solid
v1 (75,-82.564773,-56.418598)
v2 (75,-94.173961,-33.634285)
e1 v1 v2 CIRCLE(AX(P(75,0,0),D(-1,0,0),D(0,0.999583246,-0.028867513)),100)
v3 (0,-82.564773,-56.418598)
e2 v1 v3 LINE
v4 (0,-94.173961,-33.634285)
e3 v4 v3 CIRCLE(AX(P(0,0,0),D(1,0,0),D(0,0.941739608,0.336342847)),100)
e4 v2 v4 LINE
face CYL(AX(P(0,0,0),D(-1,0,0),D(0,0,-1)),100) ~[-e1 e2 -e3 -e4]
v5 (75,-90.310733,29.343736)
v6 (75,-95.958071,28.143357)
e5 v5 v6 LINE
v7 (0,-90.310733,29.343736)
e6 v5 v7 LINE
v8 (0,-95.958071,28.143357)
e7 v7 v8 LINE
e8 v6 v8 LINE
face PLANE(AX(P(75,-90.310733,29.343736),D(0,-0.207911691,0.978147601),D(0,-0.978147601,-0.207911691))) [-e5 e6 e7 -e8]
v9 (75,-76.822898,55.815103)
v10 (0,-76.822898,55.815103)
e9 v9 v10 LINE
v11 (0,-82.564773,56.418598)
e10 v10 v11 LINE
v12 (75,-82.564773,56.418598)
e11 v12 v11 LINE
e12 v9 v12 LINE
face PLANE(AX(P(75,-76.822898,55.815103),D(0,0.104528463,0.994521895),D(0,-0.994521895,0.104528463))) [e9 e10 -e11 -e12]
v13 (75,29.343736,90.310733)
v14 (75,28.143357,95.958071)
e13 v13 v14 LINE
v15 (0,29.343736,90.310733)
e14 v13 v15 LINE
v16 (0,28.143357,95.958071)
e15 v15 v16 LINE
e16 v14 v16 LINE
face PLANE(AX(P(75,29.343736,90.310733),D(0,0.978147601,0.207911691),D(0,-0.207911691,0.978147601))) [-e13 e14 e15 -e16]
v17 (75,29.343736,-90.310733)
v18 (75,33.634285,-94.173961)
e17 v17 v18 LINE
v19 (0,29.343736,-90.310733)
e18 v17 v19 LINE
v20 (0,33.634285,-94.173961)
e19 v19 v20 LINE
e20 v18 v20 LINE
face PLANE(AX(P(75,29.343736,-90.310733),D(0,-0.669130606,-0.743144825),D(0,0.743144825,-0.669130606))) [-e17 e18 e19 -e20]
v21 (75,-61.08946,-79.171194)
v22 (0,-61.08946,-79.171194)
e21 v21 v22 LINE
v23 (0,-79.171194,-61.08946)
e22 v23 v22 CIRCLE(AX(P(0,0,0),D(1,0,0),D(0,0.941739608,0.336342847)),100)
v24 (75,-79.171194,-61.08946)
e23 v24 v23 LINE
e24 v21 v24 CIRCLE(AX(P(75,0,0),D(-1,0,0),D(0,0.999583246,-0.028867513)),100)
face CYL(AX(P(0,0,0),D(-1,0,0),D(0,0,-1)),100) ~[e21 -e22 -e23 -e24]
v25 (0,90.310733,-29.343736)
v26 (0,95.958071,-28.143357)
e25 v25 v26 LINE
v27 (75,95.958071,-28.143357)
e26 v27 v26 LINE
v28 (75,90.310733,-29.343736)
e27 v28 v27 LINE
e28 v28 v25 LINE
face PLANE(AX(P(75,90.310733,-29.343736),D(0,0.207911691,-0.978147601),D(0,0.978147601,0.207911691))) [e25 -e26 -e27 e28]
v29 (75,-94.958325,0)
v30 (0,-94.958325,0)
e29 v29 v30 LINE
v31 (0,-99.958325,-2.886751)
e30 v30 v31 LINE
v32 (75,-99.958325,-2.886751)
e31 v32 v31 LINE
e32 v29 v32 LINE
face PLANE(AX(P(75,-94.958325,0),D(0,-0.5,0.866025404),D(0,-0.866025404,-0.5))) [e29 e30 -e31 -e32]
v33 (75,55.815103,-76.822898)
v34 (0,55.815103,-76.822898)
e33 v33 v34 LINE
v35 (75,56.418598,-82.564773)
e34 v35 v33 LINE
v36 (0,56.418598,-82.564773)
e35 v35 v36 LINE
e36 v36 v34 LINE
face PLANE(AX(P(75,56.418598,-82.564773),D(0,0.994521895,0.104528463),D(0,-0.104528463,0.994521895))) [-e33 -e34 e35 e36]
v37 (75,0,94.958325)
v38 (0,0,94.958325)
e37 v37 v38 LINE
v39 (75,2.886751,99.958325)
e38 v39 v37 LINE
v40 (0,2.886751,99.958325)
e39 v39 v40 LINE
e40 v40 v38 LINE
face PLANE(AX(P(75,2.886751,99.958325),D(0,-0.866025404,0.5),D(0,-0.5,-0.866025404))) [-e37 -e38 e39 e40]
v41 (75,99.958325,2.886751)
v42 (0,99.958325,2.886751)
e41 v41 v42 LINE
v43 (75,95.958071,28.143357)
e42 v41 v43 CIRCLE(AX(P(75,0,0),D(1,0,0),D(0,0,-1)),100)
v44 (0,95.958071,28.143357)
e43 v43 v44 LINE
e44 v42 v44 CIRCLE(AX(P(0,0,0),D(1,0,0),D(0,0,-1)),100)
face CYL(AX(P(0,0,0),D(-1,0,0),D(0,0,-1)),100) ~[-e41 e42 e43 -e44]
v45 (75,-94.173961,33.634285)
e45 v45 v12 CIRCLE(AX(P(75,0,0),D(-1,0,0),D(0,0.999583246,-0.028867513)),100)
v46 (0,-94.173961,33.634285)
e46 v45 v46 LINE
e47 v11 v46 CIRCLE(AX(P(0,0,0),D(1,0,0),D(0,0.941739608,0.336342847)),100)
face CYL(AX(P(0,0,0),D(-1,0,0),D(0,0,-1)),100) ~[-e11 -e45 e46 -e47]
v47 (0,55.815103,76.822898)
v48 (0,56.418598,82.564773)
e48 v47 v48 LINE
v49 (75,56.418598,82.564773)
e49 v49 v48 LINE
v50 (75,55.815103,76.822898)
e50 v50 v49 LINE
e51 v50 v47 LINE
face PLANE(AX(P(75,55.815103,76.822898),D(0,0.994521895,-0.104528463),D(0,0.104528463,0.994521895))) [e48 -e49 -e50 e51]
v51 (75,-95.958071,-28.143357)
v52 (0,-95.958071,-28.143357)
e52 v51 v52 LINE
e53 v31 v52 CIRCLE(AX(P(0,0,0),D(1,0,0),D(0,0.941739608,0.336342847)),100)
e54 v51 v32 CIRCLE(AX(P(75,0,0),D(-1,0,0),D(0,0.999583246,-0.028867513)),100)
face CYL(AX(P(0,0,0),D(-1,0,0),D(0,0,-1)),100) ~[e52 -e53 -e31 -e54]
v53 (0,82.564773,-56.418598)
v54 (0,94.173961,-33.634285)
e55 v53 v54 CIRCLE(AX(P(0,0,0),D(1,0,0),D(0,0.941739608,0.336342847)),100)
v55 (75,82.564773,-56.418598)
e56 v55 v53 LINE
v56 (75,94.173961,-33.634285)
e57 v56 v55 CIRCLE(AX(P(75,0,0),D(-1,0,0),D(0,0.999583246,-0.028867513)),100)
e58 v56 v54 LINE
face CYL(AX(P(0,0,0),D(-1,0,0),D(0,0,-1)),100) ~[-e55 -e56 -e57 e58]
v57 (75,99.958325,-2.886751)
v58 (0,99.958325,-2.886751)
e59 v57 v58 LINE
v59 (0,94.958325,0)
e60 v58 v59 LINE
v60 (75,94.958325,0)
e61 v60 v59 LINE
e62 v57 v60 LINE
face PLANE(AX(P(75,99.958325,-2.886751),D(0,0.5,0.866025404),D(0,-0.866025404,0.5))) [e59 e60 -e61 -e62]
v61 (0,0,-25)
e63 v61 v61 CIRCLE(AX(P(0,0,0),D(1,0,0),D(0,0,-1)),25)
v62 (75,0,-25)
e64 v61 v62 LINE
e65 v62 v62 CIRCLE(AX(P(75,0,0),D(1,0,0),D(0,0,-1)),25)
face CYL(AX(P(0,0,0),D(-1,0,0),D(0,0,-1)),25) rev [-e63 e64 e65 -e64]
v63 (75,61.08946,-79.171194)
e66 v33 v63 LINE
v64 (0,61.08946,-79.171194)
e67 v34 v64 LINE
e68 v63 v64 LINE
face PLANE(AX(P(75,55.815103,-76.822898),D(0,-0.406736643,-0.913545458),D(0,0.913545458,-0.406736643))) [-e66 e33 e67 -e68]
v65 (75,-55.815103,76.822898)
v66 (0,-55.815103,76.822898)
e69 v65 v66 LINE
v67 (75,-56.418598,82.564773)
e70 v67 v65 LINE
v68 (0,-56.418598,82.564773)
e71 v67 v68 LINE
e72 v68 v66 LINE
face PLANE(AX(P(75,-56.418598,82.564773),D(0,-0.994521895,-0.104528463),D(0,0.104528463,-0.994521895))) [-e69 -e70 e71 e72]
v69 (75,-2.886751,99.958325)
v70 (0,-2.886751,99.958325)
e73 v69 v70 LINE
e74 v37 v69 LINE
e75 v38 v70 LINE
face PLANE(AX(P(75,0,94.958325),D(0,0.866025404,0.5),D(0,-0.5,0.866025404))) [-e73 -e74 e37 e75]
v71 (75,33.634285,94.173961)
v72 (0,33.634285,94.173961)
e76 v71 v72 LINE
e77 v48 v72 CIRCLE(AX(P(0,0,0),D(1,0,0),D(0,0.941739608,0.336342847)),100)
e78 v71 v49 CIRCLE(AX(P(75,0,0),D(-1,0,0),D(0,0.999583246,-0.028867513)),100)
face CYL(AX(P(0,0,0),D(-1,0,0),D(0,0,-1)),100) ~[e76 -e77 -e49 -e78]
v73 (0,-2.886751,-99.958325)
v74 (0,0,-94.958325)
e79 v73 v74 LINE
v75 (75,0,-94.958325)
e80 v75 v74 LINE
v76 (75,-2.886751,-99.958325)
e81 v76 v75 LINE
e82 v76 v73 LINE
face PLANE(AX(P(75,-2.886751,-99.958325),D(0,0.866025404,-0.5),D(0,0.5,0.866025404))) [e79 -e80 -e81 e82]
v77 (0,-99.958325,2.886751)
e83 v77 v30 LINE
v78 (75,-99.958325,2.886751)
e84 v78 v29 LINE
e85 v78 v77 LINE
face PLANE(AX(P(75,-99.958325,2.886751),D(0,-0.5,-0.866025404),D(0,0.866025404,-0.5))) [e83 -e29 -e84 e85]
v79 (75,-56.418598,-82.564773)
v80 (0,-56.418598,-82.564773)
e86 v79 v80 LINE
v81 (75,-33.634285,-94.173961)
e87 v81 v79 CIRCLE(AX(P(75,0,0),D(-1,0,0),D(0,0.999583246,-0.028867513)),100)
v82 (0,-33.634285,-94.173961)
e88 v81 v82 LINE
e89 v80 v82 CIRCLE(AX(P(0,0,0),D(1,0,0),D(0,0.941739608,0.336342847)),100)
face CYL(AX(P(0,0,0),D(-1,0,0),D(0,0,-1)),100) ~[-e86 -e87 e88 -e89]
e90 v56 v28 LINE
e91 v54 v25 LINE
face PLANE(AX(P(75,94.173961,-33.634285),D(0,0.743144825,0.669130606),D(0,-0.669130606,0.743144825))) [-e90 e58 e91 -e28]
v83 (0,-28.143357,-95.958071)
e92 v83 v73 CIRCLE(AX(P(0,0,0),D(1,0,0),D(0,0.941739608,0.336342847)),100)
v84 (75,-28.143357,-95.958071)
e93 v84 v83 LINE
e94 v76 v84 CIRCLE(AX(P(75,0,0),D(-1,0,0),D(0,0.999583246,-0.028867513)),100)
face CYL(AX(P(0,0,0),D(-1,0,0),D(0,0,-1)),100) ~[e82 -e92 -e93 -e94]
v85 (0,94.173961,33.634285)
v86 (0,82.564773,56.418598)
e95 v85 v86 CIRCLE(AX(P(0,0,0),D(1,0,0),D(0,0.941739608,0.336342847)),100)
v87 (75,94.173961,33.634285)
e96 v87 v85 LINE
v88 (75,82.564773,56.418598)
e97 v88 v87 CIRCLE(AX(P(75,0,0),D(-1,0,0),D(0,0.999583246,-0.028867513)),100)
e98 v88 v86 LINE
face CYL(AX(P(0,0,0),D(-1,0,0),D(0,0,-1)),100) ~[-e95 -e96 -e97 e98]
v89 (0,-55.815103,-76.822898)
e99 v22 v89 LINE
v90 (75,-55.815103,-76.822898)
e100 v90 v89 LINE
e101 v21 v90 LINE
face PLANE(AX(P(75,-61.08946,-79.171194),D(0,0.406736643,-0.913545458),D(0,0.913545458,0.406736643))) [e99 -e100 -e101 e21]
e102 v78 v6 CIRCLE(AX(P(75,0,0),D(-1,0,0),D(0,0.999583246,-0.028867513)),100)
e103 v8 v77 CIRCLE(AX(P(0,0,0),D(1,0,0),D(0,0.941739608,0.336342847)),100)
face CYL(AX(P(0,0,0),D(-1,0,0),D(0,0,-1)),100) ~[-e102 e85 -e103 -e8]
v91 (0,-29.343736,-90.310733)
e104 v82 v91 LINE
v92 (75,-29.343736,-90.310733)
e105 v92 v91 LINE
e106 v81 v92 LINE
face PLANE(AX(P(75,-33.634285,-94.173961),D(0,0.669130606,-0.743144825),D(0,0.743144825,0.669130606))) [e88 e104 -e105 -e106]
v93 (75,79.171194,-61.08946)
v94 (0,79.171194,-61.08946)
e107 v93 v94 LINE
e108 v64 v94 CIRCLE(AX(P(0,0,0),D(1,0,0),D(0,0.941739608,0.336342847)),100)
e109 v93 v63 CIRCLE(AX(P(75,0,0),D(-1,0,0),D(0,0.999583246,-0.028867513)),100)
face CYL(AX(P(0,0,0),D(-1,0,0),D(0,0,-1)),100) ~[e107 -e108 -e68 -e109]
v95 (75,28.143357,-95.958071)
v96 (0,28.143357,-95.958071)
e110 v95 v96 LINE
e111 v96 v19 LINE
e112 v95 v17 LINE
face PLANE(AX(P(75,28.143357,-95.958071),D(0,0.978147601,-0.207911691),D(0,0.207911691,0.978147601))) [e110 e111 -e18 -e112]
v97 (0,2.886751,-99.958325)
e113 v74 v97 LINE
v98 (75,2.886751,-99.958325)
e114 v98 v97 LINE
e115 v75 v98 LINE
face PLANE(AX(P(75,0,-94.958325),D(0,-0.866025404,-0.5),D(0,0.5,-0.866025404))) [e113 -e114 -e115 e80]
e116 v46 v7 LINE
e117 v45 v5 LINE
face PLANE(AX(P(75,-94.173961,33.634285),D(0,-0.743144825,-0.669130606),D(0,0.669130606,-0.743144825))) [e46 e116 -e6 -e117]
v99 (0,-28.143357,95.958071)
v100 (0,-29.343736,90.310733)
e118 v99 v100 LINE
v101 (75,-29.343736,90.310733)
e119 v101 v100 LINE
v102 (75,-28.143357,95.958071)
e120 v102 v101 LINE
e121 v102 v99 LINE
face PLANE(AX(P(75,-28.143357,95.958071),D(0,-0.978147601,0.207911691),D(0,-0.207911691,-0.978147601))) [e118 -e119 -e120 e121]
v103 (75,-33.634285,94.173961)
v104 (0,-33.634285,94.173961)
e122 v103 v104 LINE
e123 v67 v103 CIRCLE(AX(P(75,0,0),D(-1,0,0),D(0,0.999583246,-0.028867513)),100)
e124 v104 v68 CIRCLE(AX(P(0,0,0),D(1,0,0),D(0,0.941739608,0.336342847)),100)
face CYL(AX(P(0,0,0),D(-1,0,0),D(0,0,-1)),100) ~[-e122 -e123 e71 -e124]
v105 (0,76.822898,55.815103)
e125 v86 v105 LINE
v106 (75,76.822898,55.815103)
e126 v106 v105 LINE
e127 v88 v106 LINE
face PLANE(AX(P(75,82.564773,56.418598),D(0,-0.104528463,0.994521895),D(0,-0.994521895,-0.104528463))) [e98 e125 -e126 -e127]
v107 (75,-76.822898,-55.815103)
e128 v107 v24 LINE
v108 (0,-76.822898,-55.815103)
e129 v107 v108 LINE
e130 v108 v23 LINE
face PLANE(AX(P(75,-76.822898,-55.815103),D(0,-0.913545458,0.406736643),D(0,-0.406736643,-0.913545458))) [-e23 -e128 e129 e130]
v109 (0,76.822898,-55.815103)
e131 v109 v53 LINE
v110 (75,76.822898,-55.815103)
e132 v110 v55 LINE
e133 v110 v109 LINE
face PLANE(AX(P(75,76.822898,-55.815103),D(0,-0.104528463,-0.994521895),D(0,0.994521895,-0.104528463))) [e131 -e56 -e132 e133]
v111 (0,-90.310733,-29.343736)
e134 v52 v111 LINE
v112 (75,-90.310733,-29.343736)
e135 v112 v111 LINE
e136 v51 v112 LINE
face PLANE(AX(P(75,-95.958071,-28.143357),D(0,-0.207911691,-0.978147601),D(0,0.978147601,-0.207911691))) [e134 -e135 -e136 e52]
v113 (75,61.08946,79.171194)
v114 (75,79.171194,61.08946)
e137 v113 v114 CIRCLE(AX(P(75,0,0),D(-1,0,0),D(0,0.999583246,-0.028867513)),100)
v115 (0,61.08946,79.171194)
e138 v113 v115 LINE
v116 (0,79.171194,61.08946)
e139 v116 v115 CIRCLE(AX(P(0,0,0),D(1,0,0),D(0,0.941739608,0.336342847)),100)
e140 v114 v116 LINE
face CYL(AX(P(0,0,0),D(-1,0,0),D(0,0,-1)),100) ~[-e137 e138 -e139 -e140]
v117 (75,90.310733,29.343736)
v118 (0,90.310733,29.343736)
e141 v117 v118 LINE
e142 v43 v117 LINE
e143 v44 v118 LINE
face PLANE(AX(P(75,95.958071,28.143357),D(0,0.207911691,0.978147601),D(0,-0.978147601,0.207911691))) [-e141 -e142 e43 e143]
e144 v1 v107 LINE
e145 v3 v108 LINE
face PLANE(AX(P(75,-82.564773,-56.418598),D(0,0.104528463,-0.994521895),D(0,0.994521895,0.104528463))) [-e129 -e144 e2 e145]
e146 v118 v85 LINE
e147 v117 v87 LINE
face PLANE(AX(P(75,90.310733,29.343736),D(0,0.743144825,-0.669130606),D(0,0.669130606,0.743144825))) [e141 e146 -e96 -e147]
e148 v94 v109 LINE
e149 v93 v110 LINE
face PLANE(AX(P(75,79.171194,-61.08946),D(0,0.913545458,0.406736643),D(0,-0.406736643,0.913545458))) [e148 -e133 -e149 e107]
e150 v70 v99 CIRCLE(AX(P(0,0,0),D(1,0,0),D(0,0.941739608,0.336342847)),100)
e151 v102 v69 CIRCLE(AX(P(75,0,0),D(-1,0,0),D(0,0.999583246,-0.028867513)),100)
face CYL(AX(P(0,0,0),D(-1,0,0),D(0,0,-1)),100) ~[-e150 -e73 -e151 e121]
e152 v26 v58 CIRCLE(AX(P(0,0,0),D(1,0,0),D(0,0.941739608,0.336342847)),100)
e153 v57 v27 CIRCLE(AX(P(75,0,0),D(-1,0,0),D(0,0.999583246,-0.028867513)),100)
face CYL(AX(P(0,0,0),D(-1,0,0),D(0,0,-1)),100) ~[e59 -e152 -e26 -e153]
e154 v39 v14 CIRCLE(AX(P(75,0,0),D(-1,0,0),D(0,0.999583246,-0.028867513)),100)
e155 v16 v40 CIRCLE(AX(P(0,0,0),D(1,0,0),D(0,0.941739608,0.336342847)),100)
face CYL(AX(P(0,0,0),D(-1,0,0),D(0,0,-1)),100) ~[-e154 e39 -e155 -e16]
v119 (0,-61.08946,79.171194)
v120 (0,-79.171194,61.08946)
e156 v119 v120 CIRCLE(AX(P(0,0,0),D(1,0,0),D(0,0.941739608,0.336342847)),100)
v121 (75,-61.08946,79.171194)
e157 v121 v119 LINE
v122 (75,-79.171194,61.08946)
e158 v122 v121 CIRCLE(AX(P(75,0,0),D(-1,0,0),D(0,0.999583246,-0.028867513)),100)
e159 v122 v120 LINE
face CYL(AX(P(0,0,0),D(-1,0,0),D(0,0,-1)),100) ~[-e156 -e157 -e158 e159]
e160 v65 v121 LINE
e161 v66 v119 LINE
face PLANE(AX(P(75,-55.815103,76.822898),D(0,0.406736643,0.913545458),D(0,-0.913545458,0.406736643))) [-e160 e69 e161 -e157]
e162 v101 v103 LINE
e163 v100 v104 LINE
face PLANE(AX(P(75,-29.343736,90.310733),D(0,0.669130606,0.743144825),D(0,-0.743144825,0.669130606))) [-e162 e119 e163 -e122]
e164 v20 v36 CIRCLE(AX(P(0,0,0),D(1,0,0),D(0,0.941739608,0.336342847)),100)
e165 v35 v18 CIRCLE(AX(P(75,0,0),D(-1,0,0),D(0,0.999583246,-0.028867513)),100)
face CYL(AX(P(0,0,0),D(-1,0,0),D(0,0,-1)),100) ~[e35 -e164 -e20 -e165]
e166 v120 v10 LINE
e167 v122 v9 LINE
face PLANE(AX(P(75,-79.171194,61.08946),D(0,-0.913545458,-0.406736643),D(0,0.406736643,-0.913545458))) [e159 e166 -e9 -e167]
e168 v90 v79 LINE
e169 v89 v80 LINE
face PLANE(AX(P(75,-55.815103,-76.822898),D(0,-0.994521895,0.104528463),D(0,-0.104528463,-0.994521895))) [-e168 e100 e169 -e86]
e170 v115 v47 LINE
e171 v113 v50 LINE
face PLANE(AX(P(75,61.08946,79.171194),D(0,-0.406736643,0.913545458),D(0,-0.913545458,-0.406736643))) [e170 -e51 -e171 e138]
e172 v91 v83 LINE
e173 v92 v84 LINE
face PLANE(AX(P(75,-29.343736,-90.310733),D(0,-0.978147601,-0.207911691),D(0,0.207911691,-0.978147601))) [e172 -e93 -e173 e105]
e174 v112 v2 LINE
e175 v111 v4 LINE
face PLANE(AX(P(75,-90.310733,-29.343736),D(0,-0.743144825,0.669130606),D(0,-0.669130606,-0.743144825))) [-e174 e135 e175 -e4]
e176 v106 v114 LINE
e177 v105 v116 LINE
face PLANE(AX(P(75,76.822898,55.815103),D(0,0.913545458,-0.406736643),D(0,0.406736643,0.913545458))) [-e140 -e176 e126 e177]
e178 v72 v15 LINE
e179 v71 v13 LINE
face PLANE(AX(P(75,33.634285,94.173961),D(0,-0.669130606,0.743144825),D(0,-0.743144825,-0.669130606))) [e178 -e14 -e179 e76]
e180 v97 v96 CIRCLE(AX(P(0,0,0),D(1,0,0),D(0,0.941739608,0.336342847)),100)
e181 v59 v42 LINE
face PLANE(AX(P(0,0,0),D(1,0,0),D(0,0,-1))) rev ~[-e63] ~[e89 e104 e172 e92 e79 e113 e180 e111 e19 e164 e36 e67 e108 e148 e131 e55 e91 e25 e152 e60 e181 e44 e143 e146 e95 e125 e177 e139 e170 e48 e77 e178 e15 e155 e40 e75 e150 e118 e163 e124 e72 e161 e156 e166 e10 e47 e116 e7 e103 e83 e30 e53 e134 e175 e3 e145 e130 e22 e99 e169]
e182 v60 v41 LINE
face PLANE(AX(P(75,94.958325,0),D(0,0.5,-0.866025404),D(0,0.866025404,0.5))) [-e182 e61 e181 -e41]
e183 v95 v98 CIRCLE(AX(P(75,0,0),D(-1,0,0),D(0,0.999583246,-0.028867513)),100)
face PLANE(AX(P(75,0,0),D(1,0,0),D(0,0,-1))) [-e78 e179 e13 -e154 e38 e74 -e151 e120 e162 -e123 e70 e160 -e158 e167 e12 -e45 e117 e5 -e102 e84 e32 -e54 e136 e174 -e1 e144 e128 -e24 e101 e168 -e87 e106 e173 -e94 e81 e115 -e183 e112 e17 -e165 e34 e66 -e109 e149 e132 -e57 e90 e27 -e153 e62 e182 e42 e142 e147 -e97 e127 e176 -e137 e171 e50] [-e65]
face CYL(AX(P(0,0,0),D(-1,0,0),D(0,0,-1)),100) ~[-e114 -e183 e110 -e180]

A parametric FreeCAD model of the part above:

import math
import FreeCAD as App
import Part
import Sketcher
Q = App.Units.Quantity

doc = App.newDocument("Part")
body = doc.addObject("PartDesign::Body", "Body")

# Sketch on YZ plane
sketch1 = body.newObject("Sketcher::SketchObject", "Sketch")
sketch1.AttachmentSupport = (doc.getObject("YZ_Plane"), [""])
sketch1.MapMode = "FlatFace"
sketch1.addGeometry([
    Part.Circle(App.Vector(0, 0, 0), App.Vector(0, 0, 1), 100),
    Part.Circle(App.Vector(0, 0, 0), App.Vector(0, 0, 1), 25),
], False)
sketch1.addConstraint([
    Sketcher.Constraint("Coincident", 0, 3, -1, 1),
    Sketcher.Constraint("Coincident", 1, 3, -1, 1),
    Sketcher.Constraint("Diameter", 0, Q("200 mm")),
    Sketcher.Constraint("Diameter", 1, Q("50 mm")),
])
pad1 = body.newObject("PartDesign::Pad", "Pad")
pad1.Profile = sketch1
pad1.Length = 75

# Sketch on YZ plane
sketch2 = body.newObject("Sketcher::SketchObject", "Sketch001")
sketch2.AttachmentSupport = (doc.getObject("YZ_Plane"), [""])
sketch2.MapMode = "FlatFace"
sketch2.AttachmentOffset = App.Placement(App.Vector(0, 0, 75), App.Rotation())
sketch2.addGeometry([
    Part.LineSegment(App.Vector(95, 0, 0), App.Vector(100, -3, 0)),
    Part.ArcOfCircle(Part.Circle(App.Vector(0, 0, 0), App.Vector(0, 0, 1), 100), math.radians(-1.65), math.radians(1.65)),
    Part.LineSegment(App.Vector(100, 3, 0), App.Vector(95, 0, 0)),
], False)
sketch2.addConstraint([
    Sketcher.Constraint("Coincident", 0, 2, 1, 1),
    Sketcher.Constraint("Coincident", 1, 2, 2, 1),
    Sketcher.Constraint("Coincident", 2, 2, 0, 1),
    Sketcher.Constraint("Coincident", 1, 3, -1, 1),
    Sketcher.Constraint("PointOnObject", 2, 2, -1),
    Sketcher.Constraint("Vertical", 0, 2, 1, 2),
    Sketcher.Constraint("Radius", 1, Q("100 mm")),
    Sketcher.Constraint("Angle", 0, Q("-30 deg")),
    Sketcher.Constraint("DistanceX", 2, 2, 1, 2, Q("5 mm")),
])
pocket1 = body.newObject("PartDesign::Pocket", "Pocket")
pocket1.Profile = sketch2
pocket1.Type = "ThroughAll"
doc.recompute()

polarpattern = body.newObject("PartDesign::PolarPattern", "PolarPattern")
polarpattern.Originals = [pocket1]
polarpattern.Axis = (doc.getObject("X_Axis"), [""])
polarpattern.Angle = 360
polarpattern.Occurrences = 20
body.Tip = polarpattern

doc.recompute()
